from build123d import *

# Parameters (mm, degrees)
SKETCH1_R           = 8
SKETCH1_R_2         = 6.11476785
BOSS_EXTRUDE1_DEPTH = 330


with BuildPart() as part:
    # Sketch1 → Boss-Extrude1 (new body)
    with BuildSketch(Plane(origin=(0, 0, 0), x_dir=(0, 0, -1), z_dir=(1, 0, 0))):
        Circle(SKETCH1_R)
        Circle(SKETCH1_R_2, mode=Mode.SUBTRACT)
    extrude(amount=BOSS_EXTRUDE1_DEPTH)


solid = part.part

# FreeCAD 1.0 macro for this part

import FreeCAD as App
import Part
import Sketcher

V = App.Vector
Q = App.Units.Quantity

doc = App.newDocument("Part")
body = doc.addObject("PartDesign::Body", "Body")

sketch1 = body.newObject("Sketcher::SketchObject", "Sketch")
sketch1.AttachmentSupport = (doc.getObject("YZ_Plane"), [""])
sketch1.MapMode = "FlatFace"
sketch1.addGeometry([
    Part.Circle(V(0, 0, 0), V(0, 0, 1), 8),
    Part.Circle(V(0, 0, 0), V(0, 0, 1), 6),
], False)
sketch1.addConstraint([
    Sketcher.Constraint("Coincident", 0, 3, -1, 1),
    Sketcher.Constraint("Coincident", 1, 3, -1, 1),
    Sketcher.Constraint("Diameter", 0, Q("16 mm")),
    Sketcher.Constraint("Diameter", 1, Q("12.229536 mm")),
])
pad1 = body.newObject("PartDesign::Pad", "Pad")
pad1.Profile = sketch1
pad1.Length = 330

doc.recompute()
